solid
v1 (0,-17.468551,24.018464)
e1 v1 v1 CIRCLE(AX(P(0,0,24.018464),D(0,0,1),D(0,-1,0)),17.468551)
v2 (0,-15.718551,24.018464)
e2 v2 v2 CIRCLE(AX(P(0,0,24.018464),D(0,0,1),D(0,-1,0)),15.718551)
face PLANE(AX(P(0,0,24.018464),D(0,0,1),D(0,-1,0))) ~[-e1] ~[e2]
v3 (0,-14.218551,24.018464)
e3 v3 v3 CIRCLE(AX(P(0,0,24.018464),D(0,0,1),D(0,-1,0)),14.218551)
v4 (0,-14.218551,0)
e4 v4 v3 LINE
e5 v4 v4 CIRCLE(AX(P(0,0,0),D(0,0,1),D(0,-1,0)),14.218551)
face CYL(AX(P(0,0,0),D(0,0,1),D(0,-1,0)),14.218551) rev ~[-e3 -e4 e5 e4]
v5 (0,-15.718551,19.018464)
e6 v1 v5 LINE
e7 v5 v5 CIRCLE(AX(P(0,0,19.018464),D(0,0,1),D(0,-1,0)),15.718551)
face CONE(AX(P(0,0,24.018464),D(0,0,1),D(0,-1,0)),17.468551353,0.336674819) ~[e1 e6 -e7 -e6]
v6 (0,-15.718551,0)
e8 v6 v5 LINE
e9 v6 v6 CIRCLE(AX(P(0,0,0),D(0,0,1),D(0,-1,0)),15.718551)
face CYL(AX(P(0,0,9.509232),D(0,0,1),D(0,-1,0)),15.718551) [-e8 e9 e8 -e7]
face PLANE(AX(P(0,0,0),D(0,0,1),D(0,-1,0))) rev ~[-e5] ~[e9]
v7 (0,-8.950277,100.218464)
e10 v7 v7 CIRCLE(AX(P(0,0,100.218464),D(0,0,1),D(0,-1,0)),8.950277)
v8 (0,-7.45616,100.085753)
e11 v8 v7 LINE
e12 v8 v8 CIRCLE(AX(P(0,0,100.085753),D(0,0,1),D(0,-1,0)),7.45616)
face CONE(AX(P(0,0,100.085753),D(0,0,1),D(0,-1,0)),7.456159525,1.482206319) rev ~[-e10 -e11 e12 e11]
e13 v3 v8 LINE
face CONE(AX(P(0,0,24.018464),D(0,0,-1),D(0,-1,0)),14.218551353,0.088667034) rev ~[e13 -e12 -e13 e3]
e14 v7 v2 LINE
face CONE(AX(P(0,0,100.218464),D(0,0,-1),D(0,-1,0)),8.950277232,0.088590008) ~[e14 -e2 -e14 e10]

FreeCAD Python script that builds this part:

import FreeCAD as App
import Part
import Sketcher
Q = App.Units.Quantity

doc = App.newDocument("Part")
body = doc.addObject("PartDesign::Body", "Body")

sketch1 = doc.addObject("Sketcher::SketchObject", "Sketch")
body.addObject(sketch1)
sketch1.AttachmentSupport = (doc.YZ_Plane, [""])
sketch1.MapMode = "FlatFace"
sketch1.addGeometry([
    Part.LineSegment(App.Vector(-14.2, 24, 0), App.Vector(-7.5, 100.1, 0)),
    Part.LineSegment(App.Vector(-7.5, 100.1, 0), App.Vector(-9, 100.2, 0)),
    Part.LineSegment(App.Vector(-9, 100.2, 0), App.Vector(-15.7, 24, 0)),
    Part.LineSegment(App.Vector(-15.7, 24, 0), App.Vector(-17.5, 24, 0)),
    Part.LineSegment(App.Vector(-17.5, 24, 0), App.Vector(-15.7, 19, 0)),
    Part.LineSegment(App.Vector(-15.7, 19, 0), App.Vector(-15.7, 0, 0)),
    Part.LineSegment(App.Vector(-15.7, 0, 0), App.Vector(-14.2, 0, 0)),
    Part.LineSegment(App.Vector(-14.2, 0, 0), App.Vector(-14.2, 24, 0)),
], False)
sketch1.addConstraint([
    Sketcher.Constraint("Coincident", 0, 2, 1, 1),
    Sketcher.Constraint("Coincident", 1, 2, 2, 1),
    Sketcher.Constraint("Coincident", 2, 2, 3, 1),
    Sketcher.Constraint("Coincident", 3, 2, 4, 1),
    Sketcher.Constraint("Coincident", 4, 2, 5, 1),
    Sketcher.Constraint("Coincident", 5, 2, 6, 1),
    Sketcher.Constraint("Coincident", 6, 2, 7, 1),
    Sketcher.Constraint("Coincident", 7, 2, 0, 1),
    Sketcher.Constraint("Horizontal", 3),
    Sketcher.Constraint("Vertical", 5),
    Sketcher.Constraint("Horizontal", 6),
    Sketcher.Constraint("Vertical", 7),
    Sketcher.Constraint("PointOnObject", 5, 2, -1),
    Sketcher.Constraint("Perpendicular", 1, 2),
    Sketcher.Constraint("Horizontal", 3, 2, 7, 2),
    Sketcher.Constraint("Vertical", 2, 2, 4, 2),
    Sketcher.Constraint("DistanceX", 6, 1, 6, 2, Q("1.5 mm")),
    Sketcher.Constraint("DistanceY", 4, 2, 2, 2, Q("5 mm")),
    Sketcher.Constraint("Distance", 1, Q("1.5 mm")),
    Sketcher.Constraint("DistanceX", 3, 2, 3, 1, Q("1.75 mm")),
    Sketcher.Constraint("DistanceY", 2, 2, 1, 2, Q("76.2 mm")),
    Sketcher.Constraint("DistanceY", 5, 2, 5, 1, Q("19.018464 mm")),
    Sketcher.Constraint("DistanceX", 0, 2, -1, 1, Q("7.45616 mm")),
    Sketcher.Constraint("DistanceX", 2, 2, -1, 1, Q("15.718551 mm")),
])
revolution = doc.addObject("PartDesign::Revolution", "Revolution")
body.addObject(revolution)
revolution.Profile = sketch1
revolution.ReferenceAxis = (sketch1, ["V_Axis"])
revolution.Angle = 360

doc.recompute()
